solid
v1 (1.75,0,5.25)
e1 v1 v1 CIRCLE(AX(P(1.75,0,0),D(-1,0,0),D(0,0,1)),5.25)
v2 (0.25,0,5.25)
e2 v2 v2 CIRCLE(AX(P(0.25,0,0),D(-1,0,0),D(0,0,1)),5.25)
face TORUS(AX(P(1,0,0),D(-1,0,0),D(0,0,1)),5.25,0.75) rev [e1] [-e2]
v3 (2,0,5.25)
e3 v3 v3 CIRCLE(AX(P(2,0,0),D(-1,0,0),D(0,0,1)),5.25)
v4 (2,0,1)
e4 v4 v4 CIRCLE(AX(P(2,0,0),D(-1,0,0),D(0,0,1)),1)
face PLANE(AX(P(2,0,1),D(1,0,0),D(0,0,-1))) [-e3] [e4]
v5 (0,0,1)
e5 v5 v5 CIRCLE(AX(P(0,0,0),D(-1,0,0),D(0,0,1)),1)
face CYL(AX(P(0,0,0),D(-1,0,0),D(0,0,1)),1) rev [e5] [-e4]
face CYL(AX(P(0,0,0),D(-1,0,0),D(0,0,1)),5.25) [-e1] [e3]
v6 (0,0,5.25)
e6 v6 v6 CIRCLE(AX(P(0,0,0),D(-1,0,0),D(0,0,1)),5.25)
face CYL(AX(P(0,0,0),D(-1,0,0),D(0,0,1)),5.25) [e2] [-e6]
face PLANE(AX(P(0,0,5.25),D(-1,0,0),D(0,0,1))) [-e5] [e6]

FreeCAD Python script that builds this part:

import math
import FreeCAD as App
import Part
import Sketcher
Q = App.Units.Quantity

doc = App.newDocument("Part")
body = doc.addObject("PartDesign::Body", "Body")

sketch1 = doc.addObject("Sketcher::SketchObject", "Sketch")
body.addObject(sketch1)
sketch1.AttachmentSupport = (doc.XZ_Plane, [""])
sketch1.MapMode = "FlatFace"
sketch1.addGeometry([
    Part.LineSegment(App.Vector(2, 1, 0), App.Vector(0, 1, 0)),
    Part.LineSegment(App.Vector(0, 1, 0), App.Vector(0, 5.25, 0)),
    Part.LineSegment(App.Vector(0, 5.25, 0), App.Vector(0.25, 5.25, 0)),
    Part.ArcOfCircle(Part.Circle(App.Vector(1, 5.25, 0), App.Vector(0, 0, 1), 0.75), math.radians(180), math.radians(360)),
    Part.LineSegment(App.Vector(1.75, 5.25, 0), App.Vector(2, 5.25, 0)),
    Part.LineSegment(App.Vector(2, 5.25, 0), App.Vector(2, 1, 0)),
], False)
sketch1.addConstraint([
    Sketcher.Constraint("Coincident", 0, 2, 1, 1),
    Sketcher.Constraint("Coincident", 1, 2, 2, 1),
    Sketcher.Constraint("Coincident", 2, 2, 3, 1),
    Sketcher.Constraint("Coincident", 3, 2, 4, 1),
    Sketcher.Constraint("Coincident", 4, 2, 5, 1),
    Sketcher.Constraint("Coincident", 5, 2, 0, 1),
    Sketcher.Constraint("Horizontal", 0),
    Sketcher.Constraint("Vertical", 1),
    Sketcher.Constraint("Horizontal", 2),
    Sketcher.Constraint("Horizontal", 4),
    Sketcher.Constraint("Vertical", 5),
    Sketcher.Constraint("PointOnObject", 0, 2, -2),
    Sketcher.Constraint("Horizontal", 3, 3, 1, 2),
    Sketcher.Constraint("Horizontal", 2, 2, 3, 2),
    Sketcher.Constraint("Equal", 2, 4),
    Sketcher.Constraint("DistanceX", 0, 2, 0, 1, Q("2 mm")),
    Sketcher.Constraint("Radius", 3, Q("0.75 mm")),
    Sketcher.Constraint("DistanceY", -1, 1, 0, 2, Q("1 mm")),
    Sketcher.Constraint("DistanceY", 1, 1, 1, 2, Q("4.25 mm")),
])
revolution = doc.addObject("PartDesign::Revolution", "Revolution")
body.addObject(revolution)
revolution.Profile = sketch1
revolution.ReferenceAxis = (sketch1, ["H_Axis"])
revolution.Angle = 360

doc.recompute()
